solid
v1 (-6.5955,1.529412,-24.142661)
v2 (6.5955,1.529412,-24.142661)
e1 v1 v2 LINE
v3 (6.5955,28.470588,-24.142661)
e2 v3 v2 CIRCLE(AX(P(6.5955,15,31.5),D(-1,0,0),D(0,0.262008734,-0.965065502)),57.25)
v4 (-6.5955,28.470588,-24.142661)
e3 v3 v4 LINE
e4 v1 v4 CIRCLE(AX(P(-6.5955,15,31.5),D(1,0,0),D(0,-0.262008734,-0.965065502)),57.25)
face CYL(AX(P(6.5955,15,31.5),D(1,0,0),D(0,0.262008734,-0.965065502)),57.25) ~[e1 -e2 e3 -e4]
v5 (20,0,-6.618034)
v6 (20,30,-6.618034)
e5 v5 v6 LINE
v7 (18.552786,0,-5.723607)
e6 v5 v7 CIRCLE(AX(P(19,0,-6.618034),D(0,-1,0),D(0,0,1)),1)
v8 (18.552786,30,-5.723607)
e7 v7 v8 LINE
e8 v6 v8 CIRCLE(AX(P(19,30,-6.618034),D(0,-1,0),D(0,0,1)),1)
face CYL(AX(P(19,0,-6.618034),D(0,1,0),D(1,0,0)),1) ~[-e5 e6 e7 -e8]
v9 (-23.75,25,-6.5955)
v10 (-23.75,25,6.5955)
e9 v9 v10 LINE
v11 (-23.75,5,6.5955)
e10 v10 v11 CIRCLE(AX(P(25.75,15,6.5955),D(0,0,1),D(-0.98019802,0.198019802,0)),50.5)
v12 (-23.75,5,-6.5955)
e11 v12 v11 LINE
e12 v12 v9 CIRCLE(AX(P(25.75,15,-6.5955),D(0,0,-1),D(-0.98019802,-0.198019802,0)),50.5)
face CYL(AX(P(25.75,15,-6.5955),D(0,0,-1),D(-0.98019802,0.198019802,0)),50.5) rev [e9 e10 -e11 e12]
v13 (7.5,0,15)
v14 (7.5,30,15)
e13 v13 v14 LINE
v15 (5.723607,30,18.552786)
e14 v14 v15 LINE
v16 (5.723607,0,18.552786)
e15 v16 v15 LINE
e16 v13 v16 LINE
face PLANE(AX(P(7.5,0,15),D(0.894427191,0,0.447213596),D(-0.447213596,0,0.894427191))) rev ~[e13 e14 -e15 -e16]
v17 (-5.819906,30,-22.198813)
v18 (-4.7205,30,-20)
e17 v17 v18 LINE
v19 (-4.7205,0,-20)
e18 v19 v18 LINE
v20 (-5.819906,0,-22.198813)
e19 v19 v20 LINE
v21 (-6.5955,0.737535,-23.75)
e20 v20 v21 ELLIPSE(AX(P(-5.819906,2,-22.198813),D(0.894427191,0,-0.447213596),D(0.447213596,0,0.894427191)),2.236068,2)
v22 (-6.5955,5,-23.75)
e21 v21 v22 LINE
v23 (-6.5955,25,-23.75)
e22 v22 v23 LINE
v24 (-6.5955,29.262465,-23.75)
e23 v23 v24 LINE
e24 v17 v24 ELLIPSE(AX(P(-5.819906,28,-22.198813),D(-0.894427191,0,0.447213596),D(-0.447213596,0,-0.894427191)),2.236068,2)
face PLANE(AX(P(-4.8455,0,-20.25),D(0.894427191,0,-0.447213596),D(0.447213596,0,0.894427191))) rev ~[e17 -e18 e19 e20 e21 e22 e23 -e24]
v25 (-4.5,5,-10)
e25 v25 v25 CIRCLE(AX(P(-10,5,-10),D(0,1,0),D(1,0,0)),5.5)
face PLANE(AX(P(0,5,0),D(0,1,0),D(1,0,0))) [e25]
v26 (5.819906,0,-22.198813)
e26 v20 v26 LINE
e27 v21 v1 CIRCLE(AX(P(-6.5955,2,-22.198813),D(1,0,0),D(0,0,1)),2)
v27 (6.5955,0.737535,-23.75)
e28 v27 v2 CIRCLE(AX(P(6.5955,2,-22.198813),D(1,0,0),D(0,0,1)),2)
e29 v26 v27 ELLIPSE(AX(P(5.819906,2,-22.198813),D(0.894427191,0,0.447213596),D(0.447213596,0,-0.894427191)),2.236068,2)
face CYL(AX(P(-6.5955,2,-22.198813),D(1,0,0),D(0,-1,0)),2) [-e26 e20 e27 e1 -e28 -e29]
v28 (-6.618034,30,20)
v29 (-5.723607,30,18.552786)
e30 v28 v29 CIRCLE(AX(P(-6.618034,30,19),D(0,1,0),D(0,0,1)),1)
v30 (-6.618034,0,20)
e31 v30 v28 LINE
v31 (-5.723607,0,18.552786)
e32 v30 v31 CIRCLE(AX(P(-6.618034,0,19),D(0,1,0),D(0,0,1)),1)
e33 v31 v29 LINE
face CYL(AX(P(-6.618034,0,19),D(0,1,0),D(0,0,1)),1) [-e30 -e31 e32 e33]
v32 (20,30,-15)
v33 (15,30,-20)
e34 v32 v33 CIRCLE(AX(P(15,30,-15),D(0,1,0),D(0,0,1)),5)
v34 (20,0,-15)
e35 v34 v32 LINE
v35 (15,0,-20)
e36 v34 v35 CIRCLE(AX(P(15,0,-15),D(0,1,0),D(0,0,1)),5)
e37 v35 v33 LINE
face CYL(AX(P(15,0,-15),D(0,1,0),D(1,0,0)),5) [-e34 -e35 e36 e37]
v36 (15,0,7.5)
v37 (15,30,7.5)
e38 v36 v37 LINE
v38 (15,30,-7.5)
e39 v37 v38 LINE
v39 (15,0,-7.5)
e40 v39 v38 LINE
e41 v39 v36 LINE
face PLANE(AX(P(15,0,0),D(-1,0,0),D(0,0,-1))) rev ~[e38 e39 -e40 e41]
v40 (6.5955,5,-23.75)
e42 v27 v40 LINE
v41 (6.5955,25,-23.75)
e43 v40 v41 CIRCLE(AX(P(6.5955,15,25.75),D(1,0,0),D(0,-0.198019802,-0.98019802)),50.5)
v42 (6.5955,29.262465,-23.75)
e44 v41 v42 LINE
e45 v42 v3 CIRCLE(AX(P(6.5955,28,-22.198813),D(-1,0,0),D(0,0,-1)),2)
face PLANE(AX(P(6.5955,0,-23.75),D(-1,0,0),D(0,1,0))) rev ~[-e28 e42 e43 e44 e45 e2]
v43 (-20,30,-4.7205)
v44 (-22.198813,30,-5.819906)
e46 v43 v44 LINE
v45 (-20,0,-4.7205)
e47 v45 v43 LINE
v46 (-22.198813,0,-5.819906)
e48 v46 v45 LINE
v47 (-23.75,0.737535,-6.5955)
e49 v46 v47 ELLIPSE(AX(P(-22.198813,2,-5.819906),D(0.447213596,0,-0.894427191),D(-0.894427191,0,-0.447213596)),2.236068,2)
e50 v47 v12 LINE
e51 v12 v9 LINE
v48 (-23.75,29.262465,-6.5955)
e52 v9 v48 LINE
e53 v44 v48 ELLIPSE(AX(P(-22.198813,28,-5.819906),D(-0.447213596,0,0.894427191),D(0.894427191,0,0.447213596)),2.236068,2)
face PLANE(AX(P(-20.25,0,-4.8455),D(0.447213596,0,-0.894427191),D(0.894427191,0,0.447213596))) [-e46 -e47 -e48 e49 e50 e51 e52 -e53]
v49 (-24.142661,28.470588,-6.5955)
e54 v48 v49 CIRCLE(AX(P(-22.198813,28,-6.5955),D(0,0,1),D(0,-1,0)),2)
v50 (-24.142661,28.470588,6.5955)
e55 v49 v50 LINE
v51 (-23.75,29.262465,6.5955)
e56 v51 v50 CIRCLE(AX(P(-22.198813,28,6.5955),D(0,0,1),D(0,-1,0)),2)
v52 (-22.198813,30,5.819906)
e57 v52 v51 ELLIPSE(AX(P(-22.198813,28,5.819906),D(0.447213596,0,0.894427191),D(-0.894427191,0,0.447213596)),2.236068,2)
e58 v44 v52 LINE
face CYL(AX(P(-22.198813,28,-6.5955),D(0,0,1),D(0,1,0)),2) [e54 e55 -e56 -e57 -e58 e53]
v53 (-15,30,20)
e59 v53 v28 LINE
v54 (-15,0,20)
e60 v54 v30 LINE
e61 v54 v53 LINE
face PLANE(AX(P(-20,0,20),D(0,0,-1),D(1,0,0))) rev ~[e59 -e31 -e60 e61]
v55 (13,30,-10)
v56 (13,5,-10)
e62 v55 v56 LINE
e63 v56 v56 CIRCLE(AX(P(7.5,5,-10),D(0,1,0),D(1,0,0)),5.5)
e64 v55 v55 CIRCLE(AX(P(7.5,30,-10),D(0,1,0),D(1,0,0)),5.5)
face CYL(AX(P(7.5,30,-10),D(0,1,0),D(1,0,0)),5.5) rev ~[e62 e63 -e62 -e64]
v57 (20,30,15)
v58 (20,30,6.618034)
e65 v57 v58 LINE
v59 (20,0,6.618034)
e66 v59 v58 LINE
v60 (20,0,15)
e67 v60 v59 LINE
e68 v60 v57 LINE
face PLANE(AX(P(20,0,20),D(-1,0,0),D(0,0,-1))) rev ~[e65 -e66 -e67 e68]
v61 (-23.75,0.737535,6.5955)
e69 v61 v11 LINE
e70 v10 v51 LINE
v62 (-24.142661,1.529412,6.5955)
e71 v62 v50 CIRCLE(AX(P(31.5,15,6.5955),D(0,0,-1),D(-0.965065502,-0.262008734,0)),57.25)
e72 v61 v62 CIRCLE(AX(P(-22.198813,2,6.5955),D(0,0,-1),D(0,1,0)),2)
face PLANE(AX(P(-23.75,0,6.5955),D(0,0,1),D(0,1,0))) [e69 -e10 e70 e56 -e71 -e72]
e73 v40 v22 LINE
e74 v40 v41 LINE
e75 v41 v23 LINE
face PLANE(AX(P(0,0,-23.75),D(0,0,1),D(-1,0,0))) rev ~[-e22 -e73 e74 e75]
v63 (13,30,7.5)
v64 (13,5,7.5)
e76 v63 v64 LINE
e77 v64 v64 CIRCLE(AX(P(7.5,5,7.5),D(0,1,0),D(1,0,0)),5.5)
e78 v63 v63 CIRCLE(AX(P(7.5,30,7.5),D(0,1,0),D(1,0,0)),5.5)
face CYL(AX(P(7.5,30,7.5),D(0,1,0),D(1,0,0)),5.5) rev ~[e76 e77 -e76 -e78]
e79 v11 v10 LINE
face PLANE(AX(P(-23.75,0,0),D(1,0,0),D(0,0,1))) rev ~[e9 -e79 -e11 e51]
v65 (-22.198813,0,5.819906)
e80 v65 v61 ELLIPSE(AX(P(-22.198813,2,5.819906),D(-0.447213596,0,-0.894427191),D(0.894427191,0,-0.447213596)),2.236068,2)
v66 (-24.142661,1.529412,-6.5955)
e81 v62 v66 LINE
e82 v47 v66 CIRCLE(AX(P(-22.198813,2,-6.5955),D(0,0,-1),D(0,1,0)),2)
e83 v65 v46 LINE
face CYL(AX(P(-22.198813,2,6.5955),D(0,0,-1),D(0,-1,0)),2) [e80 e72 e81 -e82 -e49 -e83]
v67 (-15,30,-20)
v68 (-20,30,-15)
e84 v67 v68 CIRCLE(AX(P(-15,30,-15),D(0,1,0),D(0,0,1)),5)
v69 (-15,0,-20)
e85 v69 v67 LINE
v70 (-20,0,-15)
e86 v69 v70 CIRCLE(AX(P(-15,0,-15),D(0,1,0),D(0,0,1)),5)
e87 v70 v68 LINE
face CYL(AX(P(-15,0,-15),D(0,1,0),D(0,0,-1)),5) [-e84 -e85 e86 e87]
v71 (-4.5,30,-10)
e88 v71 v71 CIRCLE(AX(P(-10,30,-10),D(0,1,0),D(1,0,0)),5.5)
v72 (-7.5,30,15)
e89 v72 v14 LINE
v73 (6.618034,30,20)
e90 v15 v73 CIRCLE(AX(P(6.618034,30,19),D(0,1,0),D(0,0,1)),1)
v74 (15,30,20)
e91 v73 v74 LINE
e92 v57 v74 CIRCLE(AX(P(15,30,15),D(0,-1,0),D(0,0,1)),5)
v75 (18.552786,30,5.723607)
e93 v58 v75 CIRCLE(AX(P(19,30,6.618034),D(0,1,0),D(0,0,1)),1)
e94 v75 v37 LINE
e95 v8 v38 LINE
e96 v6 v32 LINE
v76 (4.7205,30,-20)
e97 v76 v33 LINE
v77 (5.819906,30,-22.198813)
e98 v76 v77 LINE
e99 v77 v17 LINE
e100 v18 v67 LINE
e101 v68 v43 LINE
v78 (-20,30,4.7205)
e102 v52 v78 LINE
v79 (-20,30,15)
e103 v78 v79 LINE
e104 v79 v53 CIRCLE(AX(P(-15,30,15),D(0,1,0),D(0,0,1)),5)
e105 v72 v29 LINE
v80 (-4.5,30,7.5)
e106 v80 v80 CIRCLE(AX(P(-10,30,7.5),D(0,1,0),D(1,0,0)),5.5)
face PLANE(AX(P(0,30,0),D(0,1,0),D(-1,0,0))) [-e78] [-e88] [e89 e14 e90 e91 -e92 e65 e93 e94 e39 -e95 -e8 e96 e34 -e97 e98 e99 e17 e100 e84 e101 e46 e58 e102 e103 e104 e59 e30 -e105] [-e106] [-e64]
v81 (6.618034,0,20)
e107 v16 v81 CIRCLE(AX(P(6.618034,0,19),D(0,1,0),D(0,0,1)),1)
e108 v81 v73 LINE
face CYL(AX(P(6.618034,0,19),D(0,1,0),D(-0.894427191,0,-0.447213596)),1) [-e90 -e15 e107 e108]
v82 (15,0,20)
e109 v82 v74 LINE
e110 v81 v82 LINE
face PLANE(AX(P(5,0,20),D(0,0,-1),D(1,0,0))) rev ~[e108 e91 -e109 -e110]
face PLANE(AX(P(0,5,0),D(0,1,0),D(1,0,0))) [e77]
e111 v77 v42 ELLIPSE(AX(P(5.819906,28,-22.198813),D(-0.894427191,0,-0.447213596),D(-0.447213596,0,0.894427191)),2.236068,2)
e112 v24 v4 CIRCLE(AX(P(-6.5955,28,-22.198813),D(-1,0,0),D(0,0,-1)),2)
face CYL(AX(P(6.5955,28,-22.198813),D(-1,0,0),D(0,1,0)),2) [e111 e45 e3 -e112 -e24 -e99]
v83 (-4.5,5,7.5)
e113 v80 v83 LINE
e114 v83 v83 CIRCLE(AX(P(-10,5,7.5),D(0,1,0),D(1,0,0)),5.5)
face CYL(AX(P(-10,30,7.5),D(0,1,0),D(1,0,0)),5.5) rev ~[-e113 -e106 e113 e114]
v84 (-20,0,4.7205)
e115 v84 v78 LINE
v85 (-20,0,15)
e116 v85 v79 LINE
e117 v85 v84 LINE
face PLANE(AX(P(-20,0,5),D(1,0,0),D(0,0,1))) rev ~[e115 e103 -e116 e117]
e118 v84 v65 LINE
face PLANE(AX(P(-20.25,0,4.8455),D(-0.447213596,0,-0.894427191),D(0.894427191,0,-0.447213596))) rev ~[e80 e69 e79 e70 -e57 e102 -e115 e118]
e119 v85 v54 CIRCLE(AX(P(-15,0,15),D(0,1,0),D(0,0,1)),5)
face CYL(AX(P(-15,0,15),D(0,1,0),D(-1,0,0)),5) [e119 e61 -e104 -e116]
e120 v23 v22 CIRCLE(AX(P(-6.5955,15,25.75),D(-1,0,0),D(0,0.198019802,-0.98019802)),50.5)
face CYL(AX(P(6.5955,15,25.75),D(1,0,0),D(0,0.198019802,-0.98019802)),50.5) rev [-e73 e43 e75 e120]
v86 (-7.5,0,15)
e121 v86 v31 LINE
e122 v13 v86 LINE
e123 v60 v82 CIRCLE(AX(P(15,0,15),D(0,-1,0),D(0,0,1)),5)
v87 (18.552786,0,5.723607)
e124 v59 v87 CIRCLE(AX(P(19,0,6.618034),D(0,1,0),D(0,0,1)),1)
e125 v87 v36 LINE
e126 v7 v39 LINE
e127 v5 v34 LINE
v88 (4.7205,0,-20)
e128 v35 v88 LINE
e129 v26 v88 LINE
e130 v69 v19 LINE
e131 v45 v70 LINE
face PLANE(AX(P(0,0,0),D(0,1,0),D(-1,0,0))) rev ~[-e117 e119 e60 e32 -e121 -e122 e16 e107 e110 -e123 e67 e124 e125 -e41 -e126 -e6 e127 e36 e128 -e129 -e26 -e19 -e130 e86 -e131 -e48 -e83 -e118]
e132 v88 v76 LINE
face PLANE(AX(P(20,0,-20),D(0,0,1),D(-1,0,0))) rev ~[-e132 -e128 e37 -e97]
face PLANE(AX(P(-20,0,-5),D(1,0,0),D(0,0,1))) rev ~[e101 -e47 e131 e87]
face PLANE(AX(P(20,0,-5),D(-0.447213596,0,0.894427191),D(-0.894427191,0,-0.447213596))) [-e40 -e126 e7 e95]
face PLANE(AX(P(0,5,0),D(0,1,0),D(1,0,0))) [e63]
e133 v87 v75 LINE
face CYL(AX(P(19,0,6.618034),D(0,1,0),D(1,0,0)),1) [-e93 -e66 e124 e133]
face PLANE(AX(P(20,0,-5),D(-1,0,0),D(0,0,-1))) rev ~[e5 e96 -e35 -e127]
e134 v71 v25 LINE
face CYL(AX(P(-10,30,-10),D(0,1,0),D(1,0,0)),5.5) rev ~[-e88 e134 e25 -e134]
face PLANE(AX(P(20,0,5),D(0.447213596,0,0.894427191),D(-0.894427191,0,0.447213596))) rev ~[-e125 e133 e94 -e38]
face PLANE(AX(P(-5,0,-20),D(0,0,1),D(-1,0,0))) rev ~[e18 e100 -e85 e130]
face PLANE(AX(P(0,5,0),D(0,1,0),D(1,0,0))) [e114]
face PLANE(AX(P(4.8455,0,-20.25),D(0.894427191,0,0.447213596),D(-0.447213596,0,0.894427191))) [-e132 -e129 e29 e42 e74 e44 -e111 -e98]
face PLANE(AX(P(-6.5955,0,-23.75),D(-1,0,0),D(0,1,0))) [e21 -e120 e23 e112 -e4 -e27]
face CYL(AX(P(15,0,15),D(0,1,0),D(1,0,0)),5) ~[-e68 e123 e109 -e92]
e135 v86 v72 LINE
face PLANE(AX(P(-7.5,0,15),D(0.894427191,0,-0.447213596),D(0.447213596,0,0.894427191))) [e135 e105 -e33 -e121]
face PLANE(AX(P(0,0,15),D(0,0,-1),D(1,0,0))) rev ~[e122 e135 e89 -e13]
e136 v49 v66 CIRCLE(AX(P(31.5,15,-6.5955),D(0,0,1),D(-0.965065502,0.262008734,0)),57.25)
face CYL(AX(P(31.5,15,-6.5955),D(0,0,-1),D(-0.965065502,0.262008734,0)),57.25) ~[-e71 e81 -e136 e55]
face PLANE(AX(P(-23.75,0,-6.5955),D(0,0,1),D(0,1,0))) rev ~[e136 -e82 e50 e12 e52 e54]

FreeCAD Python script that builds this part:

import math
import FreeCAD as App
import Part
import Sketcher
from FreeCAD import Vector
Q = App.Units.Quantity


def edges_at(feature, points):
    """Names of the edges that pass closest to the given points."""
    edges = feature.Shape.Edges
    near = lambda p: min(range(len(edges)), key=lambda i: edges[i].distToShape(Part.Vertex(*p))[0])
    return sorted({f"Edge{near(p) + 1}" for p in points})

doc = App.newDocument("Part")
params = doc.addObject("Spreadsheet::Sheet", "Params")
for row, (alias, value) in enumerate([
    ("pad1_length", "30 mm"),
    ("sketch2_diameter", "11 mm"),
    ("pocket1_length", "25 mm"),
    ("fillet_radius", "1 mm"),
    ("fillet2_radius", "5 mm"),
    ("sketch3_width", "5 mm"),
    ("sketch3_radius", "50.5 mm"),
    ("sketch3_radius2", "57.25 mm"),
    ("pad2_length", "13.191 mm"),
    ("fillet3_radius", "2 mm"),
], start=1):
    params.set(f"A{row}", alias)
    params.set(f"B{row}", "=" + value)
    params.setAlias(f"B{row}", alias)

body = doc.addObject("PartDesign::Body", "Body")

# Sketch on XZ plane
sketch1 = body.newObject("Sketcher::SketchObject", "Sketch")
sketch1.AttachmentSupport = (doc.getObject("XZ_Plane"), [""])
sketch1.MapMode = "FlatFace"
sketch1.addGeometry([
    Part.LineSegment(Vector(20, -5, 0), Vector(20, -20, 0)),  # 0
    Part.LineSegment(Vector(20, -20, 0), Vector(4.7205, -20, 0)),  # 1
    Part.LineSegment(Vector(4.7205, -20, 0), Vector(6.5955, -23.75, 0)),  # 2
    Part.LineSegment(Vector(6.5955, -23.75, 0), Vector(-6.5955, -23.75, 0)),  # 3
    Part.LineSegment(Vector(-6.5955, -23.75, 0), Vector(-4.7205, -20, 0)),  # 4
    Part.LineSegment(Vector(-4.7205, -20, 0), Vector(-20, -20, 0)),  # 5
    Part.LineSegment(Vector(-20, -20, 0), Vector(-20, -4.7205, 0)),  # 6
    Part.LineSegment(Vector(-20, -4.7205, 0), Vector(-23.75, -6.5955, 0)),  # 7
    Part.LineSegment(Vector(-23.75, -6.5955, 0), Vector(-23.75, 6.5955, 0)),  # 8
    Part.LineSegment(Vector(-23.75, 6.5955, 0), Vector(-20, 4.7205, 0)),  # 9
    Part.LineSegment(Vector(-20, 4.7205, 0), Vector(-20, 20, 0)),  # 10
    Part.LineSegment(Vector(-20, 20, 0), Vector(-5, 20, 0)),  # 11
    Part.LineSegment(Vector(-5, 20, 0), Vector(-7.5, 15, 0)),  # 12
    Part.LineSegment(Vector(-7.5, 15, 0), Vector(7.5, 15, 0)),  # 13
    Part.LineSegment(Vector(7.5, 15, 0), Vector(5, 20, 0)),  # 14
    Part.LineSegment(Vector(5, 20, 0), Vector(20, 20, 0)),  # 15
    Part.LineSegment(Vector(20, 20, 0), Vector(20, 5, 0)),  # 16
    Part.LineSegment(Vector(20, 5, 0), Vector(15, 7.5, 0)),  # 17
    Part.LineSegment(Vector(15, 7.5, 0), Vector(15, -7.5, 0)),  # 18
    Part.LineSegment(Vector(15, -7.5, 0), Vector(20, -5, 0)),  # 19
], False)
sketch1.addConstraint([
    Sketcher.Constraint("Coincident", 0, 2, 1, 1),
    Sketcher.Constraint("Coincident", 1, 2, 2, 1),
    Sketcher.Constraint("Coincident", 2, 2, 3, 1),
    Sketcher.Constraint("Coincident", 3, 2, 4, 1),
    Sketcher.Constraint("Coincident", 4, 2, 5, 1),
    Sketcher.Constraint("Coincident", 5, 2, 6, 1),
    Sketcher.Constraint("Coincident", 6, 2, 7, 1),
    Sketcher.Constraint("Coincident", 7, 2, 8, 1),
    Sketcher.Constraint("Coincident", 8, 2, 9, 1),
    Sketcher.Constraint("Coincident", 9, 2, 10, 1),
    Sketcher.Constraint("Coincident", 10, 2, 11, 1),
    Sketcher.Constraint("Coincident", 11, 2, 12, 1),
    Sketcher.Constraint("Coincident", 12, 2, 13, 1),
    Sketcher.Constraint("Coincident", 13, 2, 14, 1),
    Sketcher.Constraint("Coincident", 14, 2, 15, 1),
    Sketcher.Constraint("Coincident", 15, 2, 16, 1),
    Sketcher.Constraint("Coincident", 16, 2, 17, 1),
    Sketcher.Constraint("Coincident", 17, 2, 18, 1),
    Sketcher.Constraint("Coincident", 18, 2, 19, 1),
    Sketcher.Constraint("Coincident", 19, 2, 0, 1),
    Sketcher.Constraint("Vertical", 0),
    Sketcher.Constraint("Horizontal", 1),
    Sketcher.Constraint("Horizontal", 3),
    Sketcher.Constraint("Horizontal", 5),
    Sketcher.Constraint("Vertical", 6),
    Sketcher.Constraint("Vertical", 8),
    Sketcher.Constraint("Vertical", 10),
    Sketcher.Constraint("Horizontal", 11),
    Sketcher.Constraint("Horizontal", 13),
    Sketcher.Constraint("Horizontal", 15),
    Sketcher.Constraint("Vertical", 16),
    Sketcher.Constraint("Vertical", 18),
    Sketcher.Constraint("Symmetric", 0, 2, 10, 2, -1, 1),
    Sketcher.Constraint("Symmetric", 5, 2, 15, 2, -1, 1),
    Sketcher.Constraint("Symmetric", 1, 2, 4, 2, -2),
    Sketcher.Constraint("Symmetric", 6, 2, 9, 2, -1),
    Sketcher.Constraint("Perpendicular", 2, 7),
    Sketcher.Constraint("Perpendicular", 4, 9),
    Sketcher.Constraint("Perpendicular", 9, 12),
    Sketcher.Constraint("Perpendicular", 7, 14),
    Sketcher.Constraint("Perpendicular", 12, 17),
    Sketcher.Constraint("Perpendicular", 14, 19),
    Sketcher.Constraint("Equal", 11, 13),
    Sketcher.Constraint("Equal", 13, 15),
    Sketcher.Constraint("Equal", 15, 0),
    Sketcher.Constraint("Equal", 5, 6),
    Sketcher.Constraint("Equal", 3, 8),
    Sketcher.Constraint("Equal", 0, 16),
    Sketcher.Constraint("Equal", 16, 18),
    Sketcher.Constraint("Equal", 2, 4),
    Sketcher.Constraint("Equal", 4, 7),
    Sketcher.Constraint("DistanceX", 11, 2, -1, 1, Q("5 mm")),
    Sketcher.Constraint("DistanceX", 5, 2, 0, 2, Q("40 mm")),
    Sketcher.Constraint("DistanceY", 12, 2, 11, 2, Q("5 mm")),
    Sketcher.Constraint("DistanceX", 3, 2, 3, 1, Q("13.191 mm")),
    Sketcher.Constraint("DistanceY", 2, 2, -1, 1, Q("23.75 mm")),
])
pad1 = body.newObject("PartDesign::Pad", "Pad")
pad1.Profile = sketch1
pad1.setExpression("Length", "Params.pad1_length")
pad1.Reversed = True

# Sketch on XZ plane
sketch2 = body.newObject("Sketcher::SketchObject", "Sketch001")
sketch2.AttachmentSupport = (doc.getObject("XZ_Plane"), [""])
sketch2.MapMode = "FlatFace"
sketch2.AttachmentOffset = App.Placement(Vector(0, 0, -30), App.Rotation())
sketch2.addGeometry([
    Part.Circle(Vector(-10, -10, 0), Vector(0, 0, 1), 5.5),
    Part.Circle(Vector(7.5, -10, 0), Vector(0, 0, 1), 5.5),
    Part.Circle(Vector(-10, 7.5, 0), Vector(0, 0, 1), 5.5),
    Part.Circle(Vector(7.5, 7.5, 0), Vector(0, 0, 1), 5.5),
], False)
sketch2.addConstraint([
    Sketcher.Constraint("Equal", 0, 1),
    Sketcher.Constraint("Equal", 1, 2),
    Sketcher.Constraint("Equal", 2, 3),
    Sketcher.Constraint("Horizontal", 0, 3, 1, 3),
    Sketcher.Constraint("Horizontal", 2, 3, 3, 3),
    Sketcher.Constraint("Vertical", 0, 3, 2, 3),
    Sketcher.Constraint("Vertical", 1, 3, 3, 3),
    Sketcher.Constraint("Diameter", 0, Q("11 mm")),
    Sketcher.Constraint("DistanceX", 0, 3, 1, 3, Q("17.5 mm")),
    Sketcher.Constraint("DistanceY", 0, 3, 2, 3, Q("17.5 mm")),
    Sketcher.Constraint("DistanceX", 0, 3, -1, 1, Q("10 mm")),
    Sketcher.Constraint("DistanceY", 0, 3, -1, 1, Q("10 mm")),
])
sketch2.setExpression("Constraints[7]", "Params.sketch2_diameter")
pocket1 = body.newObject("PartDesign::Pocket", "Pocket")
pocket1.Profile = sketch2
pocket1.setExpression("Length", "Params.pocket1_length")
pocket1.Reversed = True
doc.recompute()

fillet = body.newObject("PartDesign::Fillet", "Fillet")
fillet.Base = (pocket1, edges_at(pocket1, [
    (20, 15, -5),
    (20, 15, 5),
    (5, 15, 20),
    (-5, 15, 20),
]))
fillet.setExpression("Radius", "Params.fillet_radius")
doc.recompute()

fillet2 = body.newObject("PartDesign::Fillet", "Fillet001")
fillet2.Base = (fillet, edges_at(fillet, [
    (20, 15, -20),
    (20, 15, 20),
    (-20, 15, 20),
    (-20, 15, -20),
]))
fillet2.setExpression("Radius", "Params.fillet2_radius")

# Sketch on YZ plane
sketch3 = body.newObject("Sketcher::SketchObject", "Sketch002")
sketch3.AttachmentSupport = (doc.getObject("YZ_Plane"), [""])
sketch3.MapMode = "FlatFace"
sketch3.AttachmentOffset = App.Placement(Vector(0, 0, 6.5955), App.Rotation())
sketch3.addGeometry([
    Part.LineSegment(Vector(25, -23.75, 0), Vector(30, -23.75, 0)),
    Part.ArcOfCircle(Part.Circle(Vector(15, 31.5, 0), Vector(0, 0, 1), 57.25), math.radians(-105.189287), math.radians(-74.810713)),
    Part.LineSegment(Vector(0, -23.75, 0), Vector(5, -23.75, 0)),
    Part.ArcOfCircle(Part.Circle(Vector(15, 25.75, 0), Vector(0, 0, 1), 50.5), math.radians(-101.421186), math.radians(-78.578814)),
], False)
sketch3.addConstraint([
    Sketcher.Constraint("Coincident", 0, 2, 1, 2),
    Sketcher.Constraint("Coincident", 1, 1, 2, 1),
    Sketcher.Constraint("Coincident", 2, 2, 3, 1),
    Sketcher.Constraint("Coincident", 3, 2, 0, 1),
    Sketcher.Constraint("Horizontal", 0),
    Sketcher.Constraint("Horizontal", 2),
    Sketcher.Constraint("PointOnObject", 1, 1, -2),
    Sketcher.Constraint("Horizontal", 0, 2, 1, 1),
    Sketcher.Constraint("Vertical", 1, 3, 3, 3),
    Sketcher.Constraint("DistanceX", 0, 1, 0, 2, Q("5 mm")),
    Sketcher.Constraint("Radius", 3, Q("50.5 mm")),
    Sketcher.Constraint("Radius", 1, Q("57.25 mm")),
    Sketcher.Constraint("DistanceY", 3, 3, 1, 3, Q("5.75 mm")),
    Sketcher.Constraint("DistanceY", -1, 1, 1, 3, Q("31.5 mm")),
])
sketch3.setExpression("Constraints[9]", "Params.sketch3_width")
sketch3.setExpression("Constraints[10]", "Params.sketch3_radius")
sketch3.setExpression("Constraints[11]", "Params.sketch3_radius2")
pad2 = body.newObject("PartDesign::Pad", "Pad001")
pad2.Profile = sketch3
pad2.setExpression("Length", "Params.pad2_length")
pad2.Reversed = True
doc.recompute()

polarpattern = body.newObject("PartDesign::PolarPattern", "PolarPattern")
polarpattern.Originals = [pad2]
polarpattern.Axis = (doc.getObject("Y_Axis"), [""])
polarpattern.Angle = 90
polarpattern.Occurrences = 2
body.Tip = polarpattern
doc.recompute()

fillet3 = body.newObject("PartDesign::Fillet", "Fillet002")
fillet3.Base = (polarpattern, edges_at(polarpattern, [
    (0, 30, -23.75),
    (0, 0, -23.75),
    (-23.75, 30, 0),
    (-23.75, 0, 0),
]))
fillet3.setExpression("Radius", "Params.fillet3_radius")

doc.recompute()
